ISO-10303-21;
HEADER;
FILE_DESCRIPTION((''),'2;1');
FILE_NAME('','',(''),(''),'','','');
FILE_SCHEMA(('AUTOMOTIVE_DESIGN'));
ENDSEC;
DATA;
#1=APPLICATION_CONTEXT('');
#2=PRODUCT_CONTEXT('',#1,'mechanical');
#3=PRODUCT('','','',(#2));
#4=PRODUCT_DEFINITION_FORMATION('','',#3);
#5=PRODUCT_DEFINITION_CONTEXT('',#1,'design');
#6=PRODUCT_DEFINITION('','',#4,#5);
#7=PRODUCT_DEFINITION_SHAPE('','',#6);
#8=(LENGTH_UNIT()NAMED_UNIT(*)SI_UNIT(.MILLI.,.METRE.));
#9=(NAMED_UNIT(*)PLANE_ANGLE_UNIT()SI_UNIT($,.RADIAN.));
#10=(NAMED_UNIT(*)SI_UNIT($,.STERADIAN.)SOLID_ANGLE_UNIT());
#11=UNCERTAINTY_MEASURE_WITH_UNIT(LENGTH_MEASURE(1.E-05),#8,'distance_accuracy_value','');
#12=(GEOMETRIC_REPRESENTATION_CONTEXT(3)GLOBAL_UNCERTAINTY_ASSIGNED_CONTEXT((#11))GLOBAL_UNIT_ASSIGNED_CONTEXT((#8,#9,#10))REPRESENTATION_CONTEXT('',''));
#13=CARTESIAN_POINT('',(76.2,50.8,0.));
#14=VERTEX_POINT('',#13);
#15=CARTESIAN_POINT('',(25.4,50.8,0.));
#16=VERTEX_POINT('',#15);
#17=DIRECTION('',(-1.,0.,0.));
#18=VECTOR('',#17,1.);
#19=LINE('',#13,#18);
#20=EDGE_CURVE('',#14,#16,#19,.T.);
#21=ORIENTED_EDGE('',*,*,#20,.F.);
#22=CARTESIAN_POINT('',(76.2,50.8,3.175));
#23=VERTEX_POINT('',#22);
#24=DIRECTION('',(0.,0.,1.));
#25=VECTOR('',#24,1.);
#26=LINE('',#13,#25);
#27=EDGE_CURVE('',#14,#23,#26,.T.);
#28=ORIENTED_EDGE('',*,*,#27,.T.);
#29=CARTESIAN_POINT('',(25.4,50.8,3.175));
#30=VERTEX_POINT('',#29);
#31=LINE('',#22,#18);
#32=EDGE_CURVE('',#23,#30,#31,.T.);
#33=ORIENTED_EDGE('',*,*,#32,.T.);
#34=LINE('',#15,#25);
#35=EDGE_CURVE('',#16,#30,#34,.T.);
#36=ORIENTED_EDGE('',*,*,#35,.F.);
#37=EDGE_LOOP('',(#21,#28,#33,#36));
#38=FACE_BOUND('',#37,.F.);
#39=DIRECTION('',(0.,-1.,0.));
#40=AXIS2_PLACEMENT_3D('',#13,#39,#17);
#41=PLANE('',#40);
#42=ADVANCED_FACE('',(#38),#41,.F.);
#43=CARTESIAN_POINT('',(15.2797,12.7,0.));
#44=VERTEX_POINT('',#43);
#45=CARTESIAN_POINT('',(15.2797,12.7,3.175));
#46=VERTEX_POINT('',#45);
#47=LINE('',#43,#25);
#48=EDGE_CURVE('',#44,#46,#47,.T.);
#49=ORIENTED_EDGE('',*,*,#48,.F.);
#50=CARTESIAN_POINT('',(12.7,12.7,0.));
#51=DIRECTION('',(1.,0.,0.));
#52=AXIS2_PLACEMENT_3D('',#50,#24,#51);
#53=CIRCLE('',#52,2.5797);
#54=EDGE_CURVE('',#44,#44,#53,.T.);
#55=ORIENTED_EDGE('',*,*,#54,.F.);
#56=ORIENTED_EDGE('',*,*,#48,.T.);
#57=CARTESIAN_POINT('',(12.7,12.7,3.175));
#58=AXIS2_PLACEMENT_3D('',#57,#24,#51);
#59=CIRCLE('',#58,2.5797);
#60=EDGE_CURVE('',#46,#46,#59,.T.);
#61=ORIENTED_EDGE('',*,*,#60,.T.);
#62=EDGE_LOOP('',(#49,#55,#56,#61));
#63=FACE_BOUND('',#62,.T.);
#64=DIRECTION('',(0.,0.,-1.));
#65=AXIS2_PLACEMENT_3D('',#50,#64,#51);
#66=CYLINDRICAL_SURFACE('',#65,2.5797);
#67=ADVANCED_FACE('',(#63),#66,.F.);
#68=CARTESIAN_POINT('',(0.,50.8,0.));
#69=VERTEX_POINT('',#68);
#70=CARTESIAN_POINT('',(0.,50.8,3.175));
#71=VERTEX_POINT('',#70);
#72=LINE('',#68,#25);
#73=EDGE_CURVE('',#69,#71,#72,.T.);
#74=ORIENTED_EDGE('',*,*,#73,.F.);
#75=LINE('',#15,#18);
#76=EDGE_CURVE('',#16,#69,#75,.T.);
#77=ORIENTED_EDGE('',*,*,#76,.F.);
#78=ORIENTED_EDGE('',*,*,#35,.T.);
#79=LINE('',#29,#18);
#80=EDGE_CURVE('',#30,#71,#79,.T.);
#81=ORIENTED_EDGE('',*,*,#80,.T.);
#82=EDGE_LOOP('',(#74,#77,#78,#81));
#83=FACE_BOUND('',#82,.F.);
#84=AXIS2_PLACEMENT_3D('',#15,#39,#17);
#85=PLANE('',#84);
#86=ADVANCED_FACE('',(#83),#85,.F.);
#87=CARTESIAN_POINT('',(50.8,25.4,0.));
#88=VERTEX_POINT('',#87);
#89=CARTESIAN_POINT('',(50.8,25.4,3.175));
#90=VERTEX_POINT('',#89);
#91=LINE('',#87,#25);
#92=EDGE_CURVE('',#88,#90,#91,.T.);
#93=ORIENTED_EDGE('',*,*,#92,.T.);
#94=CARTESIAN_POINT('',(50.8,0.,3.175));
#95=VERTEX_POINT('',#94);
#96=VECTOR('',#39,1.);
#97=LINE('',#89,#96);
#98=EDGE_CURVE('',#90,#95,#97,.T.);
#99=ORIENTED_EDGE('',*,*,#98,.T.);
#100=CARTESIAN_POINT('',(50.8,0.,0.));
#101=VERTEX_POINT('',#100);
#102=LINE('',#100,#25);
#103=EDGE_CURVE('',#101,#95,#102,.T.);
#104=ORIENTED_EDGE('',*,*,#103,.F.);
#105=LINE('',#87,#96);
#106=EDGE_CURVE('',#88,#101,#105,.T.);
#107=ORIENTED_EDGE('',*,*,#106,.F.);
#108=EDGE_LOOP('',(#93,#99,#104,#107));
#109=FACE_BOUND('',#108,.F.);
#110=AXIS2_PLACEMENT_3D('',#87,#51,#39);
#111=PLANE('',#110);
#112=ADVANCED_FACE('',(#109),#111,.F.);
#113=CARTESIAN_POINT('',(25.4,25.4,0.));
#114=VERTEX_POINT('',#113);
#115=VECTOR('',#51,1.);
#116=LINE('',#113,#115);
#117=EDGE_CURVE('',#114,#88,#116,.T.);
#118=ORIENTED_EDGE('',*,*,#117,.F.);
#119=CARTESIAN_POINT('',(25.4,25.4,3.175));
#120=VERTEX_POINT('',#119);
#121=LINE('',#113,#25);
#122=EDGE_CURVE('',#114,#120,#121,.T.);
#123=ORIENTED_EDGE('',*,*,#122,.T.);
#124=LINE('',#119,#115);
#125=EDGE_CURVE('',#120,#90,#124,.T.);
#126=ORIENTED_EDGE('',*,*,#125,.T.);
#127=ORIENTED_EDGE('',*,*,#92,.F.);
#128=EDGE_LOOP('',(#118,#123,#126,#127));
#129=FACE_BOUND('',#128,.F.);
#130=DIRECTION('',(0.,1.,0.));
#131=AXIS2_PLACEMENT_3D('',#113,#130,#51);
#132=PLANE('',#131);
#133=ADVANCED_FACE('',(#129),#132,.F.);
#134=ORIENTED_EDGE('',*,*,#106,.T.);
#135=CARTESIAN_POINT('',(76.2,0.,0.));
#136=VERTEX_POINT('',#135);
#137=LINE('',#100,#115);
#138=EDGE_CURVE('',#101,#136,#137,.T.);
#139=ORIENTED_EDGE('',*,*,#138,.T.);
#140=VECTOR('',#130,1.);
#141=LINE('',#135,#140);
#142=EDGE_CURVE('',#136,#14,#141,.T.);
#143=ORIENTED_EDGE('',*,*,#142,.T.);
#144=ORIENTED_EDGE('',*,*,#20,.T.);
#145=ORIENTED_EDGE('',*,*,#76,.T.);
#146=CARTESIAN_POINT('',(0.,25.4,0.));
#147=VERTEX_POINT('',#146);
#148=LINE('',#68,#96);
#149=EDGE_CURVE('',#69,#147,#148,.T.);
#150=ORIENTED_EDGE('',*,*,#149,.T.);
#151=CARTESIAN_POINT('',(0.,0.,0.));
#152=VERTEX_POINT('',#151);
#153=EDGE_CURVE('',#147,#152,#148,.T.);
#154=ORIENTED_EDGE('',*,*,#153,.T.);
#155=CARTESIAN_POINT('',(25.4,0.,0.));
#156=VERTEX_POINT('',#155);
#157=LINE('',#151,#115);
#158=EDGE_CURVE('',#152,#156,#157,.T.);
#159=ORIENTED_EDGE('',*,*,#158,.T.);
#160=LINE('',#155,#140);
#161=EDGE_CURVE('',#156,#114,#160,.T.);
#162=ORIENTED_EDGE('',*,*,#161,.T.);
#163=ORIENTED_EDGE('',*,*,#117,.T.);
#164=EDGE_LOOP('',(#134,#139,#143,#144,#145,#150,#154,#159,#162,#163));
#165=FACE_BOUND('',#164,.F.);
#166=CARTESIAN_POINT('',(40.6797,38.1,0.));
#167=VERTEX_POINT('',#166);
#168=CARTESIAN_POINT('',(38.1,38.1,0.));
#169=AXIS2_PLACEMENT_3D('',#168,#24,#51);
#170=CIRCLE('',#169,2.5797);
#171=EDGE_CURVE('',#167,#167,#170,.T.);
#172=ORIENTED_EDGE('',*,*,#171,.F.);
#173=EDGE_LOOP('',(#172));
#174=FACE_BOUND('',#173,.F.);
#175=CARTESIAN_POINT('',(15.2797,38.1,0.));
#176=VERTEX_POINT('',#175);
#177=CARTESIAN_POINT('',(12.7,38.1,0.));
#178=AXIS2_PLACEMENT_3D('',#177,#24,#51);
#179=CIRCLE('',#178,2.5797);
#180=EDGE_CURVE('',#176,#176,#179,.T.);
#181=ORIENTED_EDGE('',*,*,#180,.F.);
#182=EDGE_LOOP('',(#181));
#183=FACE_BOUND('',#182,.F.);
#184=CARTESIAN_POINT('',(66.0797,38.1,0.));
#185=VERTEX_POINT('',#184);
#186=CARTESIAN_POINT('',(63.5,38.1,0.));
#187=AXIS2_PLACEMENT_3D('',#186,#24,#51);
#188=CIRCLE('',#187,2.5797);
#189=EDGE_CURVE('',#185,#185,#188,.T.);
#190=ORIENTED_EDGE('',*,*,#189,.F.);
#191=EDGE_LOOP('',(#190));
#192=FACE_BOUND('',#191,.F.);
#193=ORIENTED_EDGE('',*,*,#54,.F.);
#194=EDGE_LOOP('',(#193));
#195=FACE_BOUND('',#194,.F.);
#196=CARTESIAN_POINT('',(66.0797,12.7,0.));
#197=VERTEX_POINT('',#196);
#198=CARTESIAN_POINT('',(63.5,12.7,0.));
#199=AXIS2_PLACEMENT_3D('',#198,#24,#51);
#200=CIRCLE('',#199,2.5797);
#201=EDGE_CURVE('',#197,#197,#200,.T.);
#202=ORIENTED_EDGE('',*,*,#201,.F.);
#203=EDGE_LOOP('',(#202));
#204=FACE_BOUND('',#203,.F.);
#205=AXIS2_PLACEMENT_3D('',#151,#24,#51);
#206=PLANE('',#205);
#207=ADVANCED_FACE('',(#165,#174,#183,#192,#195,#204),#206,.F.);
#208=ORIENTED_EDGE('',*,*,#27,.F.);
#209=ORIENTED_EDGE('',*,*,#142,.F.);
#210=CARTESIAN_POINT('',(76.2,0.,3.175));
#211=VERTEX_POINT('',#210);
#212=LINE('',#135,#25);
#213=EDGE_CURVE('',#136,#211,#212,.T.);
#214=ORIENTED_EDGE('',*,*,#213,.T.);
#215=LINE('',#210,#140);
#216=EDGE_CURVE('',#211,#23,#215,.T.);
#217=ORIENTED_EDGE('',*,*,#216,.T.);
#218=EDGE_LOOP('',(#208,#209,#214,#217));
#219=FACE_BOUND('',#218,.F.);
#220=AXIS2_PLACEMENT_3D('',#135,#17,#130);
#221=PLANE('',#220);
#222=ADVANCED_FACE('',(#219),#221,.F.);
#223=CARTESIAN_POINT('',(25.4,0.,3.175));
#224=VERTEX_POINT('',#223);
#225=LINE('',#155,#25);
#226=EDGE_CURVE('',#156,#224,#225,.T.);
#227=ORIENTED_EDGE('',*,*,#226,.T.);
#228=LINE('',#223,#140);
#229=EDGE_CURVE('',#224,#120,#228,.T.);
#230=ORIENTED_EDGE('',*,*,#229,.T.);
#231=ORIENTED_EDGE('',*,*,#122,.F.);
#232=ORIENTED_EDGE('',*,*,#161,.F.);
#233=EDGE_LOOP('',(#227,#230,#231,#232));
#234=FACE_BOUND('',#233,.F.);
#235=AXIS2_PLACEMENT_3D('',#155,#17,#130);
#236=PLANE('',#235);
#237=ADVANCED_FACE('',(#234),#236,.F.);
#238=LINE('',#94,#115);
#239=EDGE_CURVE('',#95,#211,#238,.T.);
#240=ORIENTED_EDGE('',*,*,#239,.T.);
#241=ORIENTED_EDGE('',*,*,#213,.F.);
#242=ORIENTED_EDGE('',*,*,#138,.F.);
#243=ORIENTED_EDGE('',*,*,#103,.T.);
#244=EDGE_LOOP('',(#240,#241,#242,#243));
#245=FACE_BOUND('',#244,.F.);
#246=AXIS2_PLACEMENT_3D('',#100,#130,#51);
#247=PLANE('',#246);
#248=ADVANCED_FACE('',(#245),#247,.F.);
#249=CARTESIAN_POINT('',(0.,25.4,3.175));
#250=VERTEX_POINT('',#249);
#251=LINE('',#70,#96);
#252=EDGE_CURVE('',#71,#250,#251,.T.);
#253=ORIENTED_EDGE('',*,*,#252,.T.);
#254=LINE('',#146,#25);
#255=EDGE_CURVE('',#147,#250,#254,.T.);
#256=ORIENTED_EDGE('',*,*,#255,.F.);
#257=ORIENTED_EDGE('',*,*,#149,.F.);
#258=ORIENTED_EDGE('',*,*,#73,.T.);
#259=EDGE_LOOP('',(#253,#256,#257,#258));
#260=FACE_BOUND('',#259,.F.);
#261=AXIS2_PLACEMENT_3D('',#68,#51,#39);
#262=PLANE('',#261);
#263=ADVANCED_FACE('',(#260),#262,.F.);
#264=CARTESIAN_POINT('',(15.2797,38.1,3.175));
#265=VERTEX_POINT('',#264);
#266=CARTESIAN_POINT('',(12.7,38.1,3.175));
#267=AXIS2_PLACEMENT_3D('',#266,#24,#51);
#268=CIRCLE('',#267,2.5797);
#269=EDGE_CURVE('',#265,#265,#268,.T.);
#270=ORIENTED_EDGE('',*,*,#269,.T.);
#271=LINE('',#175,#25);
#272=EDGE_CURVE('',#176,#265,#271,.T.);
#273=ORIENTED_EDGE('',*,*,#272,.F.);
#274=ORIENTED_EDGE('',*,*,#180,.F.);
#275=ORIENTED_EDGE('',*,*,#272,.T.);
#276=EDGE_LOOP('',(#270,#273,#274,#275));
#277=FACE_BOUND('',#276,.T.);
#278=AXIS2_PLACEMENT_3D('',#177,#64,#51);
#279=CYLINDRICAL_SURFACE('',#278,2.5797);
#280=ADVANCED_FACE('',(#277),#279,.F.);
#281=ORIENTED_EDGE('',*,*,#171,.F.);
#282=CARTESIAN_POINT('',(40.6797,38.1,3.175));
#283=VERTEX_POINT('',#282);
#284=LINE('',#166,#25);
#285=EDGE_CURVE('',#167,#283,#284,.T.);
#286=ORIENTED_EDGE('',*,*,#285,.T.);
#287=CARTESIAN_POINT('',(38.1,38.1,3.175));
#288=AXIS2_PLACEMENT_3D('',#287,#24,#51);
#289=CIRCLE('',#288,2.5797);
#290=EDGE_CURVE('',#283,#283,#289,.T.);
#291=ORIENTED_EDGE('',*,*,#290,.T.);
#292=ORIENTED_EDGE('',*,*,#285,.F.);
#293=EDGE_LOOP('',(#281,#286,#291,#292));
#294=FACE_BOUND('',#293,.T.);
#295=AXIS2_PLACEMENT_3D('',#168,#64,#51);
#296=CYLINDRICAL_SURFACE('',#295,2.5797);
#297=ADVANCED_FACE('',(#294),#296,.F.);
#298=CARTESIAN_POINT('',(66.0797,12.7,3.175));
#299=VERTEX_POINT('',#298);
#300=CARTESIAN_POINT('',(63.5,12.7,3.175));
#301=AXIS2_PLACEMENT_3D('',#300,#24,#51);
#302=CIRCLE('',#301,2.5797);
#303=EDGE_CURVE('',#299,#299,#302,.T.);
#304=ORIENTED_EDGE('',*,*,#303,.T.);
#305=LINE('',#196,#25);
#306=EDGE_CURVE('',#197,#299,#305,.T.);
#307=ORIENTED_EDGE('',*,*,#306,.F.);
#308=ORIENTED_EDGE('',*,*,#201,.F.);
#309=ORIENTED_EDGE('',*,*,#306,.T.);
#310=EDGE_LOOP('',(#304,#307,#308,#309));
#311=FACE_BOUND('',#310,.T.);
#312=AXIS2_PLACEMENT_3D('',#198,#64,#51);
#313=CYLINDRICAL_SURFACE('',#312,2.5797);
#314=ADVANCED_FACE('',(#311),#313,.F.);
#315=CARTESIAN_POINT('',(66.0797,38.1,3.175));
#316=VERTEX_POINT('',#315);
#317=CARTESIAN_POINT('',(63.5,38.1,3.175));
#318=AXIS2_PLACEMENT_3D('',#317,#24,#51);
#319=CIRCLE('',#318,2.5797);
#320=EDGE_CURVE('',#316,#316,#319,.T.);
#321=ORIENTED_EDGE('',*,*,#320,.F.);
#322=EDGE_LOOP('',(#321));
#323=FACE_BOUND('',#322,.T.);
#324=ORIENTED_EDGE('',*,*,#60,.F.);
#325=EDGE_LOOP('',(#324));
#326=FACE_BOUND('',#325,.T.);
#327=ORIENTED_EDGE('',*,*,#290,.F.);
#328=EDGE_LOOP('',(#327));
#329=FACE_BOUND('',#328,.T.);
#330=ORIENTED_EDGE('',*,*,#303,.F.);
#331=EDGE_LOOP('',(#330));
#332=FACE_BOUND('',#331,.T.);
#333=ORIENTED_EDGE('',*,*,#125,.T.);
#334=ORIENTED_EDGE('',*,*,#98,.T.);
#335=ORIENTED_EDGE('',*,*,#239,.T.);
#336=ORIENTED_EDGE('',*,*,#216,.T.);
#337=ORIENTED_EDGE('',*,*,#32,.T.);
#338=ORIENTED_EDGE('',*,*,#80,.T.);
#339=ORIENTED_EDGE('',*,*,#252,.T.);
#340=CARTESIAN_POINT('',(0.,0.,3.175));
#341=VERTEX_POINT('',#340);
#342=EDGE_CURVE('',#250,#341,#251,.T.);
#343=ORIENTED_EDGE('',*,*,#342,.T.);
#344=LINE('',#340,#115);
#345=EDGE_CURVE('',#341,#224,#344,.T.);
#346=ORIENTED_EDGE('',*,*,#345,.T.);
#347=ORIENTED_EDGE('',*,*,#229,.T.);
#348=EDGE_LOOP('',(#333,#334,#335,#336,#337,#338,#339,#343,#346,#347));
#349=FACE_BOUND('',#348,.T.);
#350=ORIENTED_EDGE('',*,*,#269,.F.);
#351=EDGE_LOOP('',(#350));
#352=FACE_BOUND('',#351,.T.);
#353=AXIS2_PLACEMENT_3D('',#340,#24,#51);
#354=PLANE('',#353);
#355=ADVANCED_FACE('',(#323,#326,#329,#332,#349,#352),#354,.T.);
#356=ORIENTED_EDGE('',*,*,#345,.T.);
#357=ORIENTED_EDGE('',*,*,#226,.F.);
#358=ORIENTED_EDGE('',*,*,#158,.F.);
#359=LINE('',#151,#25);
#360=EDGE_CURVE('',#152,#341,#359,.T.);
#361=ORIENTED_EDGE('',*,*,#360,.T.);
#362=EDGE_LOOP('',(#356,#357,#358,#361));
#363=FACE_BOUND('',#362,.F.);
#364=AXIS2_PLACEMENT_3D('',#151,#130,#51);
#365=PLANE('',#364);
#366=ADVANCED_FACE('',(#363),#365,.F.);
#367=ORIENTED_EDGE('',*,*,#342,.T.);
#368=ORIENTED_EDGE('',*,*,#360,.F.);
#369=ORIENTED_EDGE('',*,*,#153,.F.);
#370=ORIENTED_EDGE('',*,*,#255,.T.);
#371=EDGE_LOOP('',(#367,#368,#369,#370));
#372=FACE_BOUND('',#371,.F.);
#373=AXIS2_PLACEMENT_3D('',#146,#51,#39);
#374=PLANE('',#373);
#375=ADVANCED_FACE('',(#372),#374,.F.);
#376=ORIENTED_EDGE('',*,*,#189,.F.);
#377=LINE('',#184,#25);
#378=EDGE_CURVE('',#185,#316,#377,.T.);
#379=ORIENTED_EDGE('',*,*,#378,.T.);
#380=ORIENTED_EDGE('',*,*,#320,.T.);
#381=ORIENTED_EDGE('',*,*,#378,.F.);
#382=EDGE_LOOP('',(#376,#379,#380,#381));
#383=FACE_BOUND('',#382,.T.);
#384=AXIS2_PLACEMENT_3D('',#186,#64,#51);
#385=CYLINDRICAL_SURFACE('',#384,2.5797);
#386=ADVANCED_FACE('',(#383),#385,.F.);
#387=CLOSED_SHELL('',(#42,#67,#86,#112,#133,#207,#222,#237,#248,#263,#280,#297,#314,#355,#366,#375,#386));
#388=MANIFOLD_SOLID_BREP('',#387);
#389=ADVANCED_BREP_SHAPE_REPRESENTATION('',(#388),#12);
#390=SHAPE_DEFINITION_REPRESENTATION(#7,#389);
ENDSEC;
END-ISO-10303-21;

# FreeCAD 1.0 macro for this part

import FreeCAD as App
import Part
import Sketcher
from FreeCAD import Vector
Q = App.Units.Quantity


def add_polygon(sketch, points):
    """Adds a closed chain of lines whose ends are joined by coincident constraints."""
    first, n = sketch.GeometryCount, len(points)
    for a, b in zip(points, points[1:] + points[:1]):
        sketch.addGeometry(Part.LineSegment(App.Vector(*a, 0), App.Vector(*b, 0)), False)
    for i in range(n):
        sketch.addConstraint(Sketcher.Constraint("Coincident", first + i, 2, first + (i + 1) % n, 1))

doc = App.newDocument("Part")
body = doc.addObject("PartDesign::Body", "Body")

# Sketch on XY plane
sketch1 = body.newObject("Sketcher::SketchObject", "Sketch")
sketch1.AttachmentSupport = (doc.getObject("XY_Plane"), [""])
sketch1.MapMode = "FlatFace"
add_polygon(sketch1, [(0, 50.8), (0, 0), (25.4, 0), (25.4, 25.4), (50.8, 25.4), (50.8, 0), (76.2, 0), (76.2, 50.8)])  # lines 0-7
sketch1.addGeometry(Part.Circle(Vector(12.7, 12.7, 0), Vector(0, 0, 1), 2.6), False)  # 8
sketch1.addGeometry(Part.Circle(Vector(63.5, 12.7, 0), Vector(0, 0, 1), 2.6), False)  # 9
sketch1.addGeometry(Part.Circle(Vector(12.7, 38.1, 0), Vector(0, 0, 1), 2.6), False)  # 10
sketch1.addGeometry(Part.Circle(Vector(38.1, 38.1, 0), Vector(0, 0, 1), 2.6), False)  # 11
sketch1.addGeometry(Part.Circle(Vector(63.5, 38.1, 0), Vector(0, 0, 1), 2.6), False)  # 12
sketch1.addConstraint(Sketcher.Constraint("Vertical", 0))
sketch1.addConstraint(Sketcher.Constraint("Horizontal", 1))
sketch1.addConstraint(Sketcher.Constraint("Vertical", 2))
sketch1.addConstraint(Sketcher.Constraint("Horizontal", 3))
sketch1.addConstraint(Sketcher.Constraint("Vertical", 4))
sketch1.addConstraint(Sketcher.Constraint("Horizontal", 5))
sketch1.addConstraint(Sketcher.Constraint("Vertical", 6))
sketch1.addConstraint(Sketcher.Constraint("Horizontal", 7))
sketch1.addConstraint(Sketcher.Constraint("Coincident", 0, 2, -1, 1))
sketch1.addConstraint(Sketcher.Constraint("Equal", 8, 9))
sketch1.addConstraint(Sketcher.Constraint("Equal", 9, 10))
sketch1.addConstraint(Sketcher.Constraint("Equal", 10, 11))
sketch1.addConstraint(Sketcher.Constraint("Equal", 11, 12))
sketch1.addConstraint(Sketcher.Constraint("PointOnObject", 4, 2, -1))
sketch1.addConstraint(Sketcher.Constraint("Horizontal", 8, 3, 9, 3))
sketch1.addConstraint(Sketcher.Constraint("Horizontal", 10, 3, 11, 3))
sketch1.addConstraint(Sketcher.Constraint("Horizontal", 11, 3, 12, 3))
sketch1.addConstraint(Sketcher.Constraint("Vertical", 8, 3, 10, 3))
sketch1.addConstraint(Sketcher.Constraint("Vertical", 9, 3, 12, 3))
sketch1.addConstraint(Sketcher.Constraint("Equal", 1, 3))
sketch1.addConstraint(Sketcher.Constraint("Equal", 3, 5))
sketch1.addConstraint(Sketcher.Constraint("Equal", 5, 2))
sketch1.addConstraint(Sketcher.Constraint("DistanceX", 1, 1, 1, 2, Q("1 in")))
sketch1.addConstraint(Sketcher.Constraint("DistanceY", 0, 2, 0, 1, Q("2 in")))
sketch1.addConstraint(Sketcher.Constraint("Diameter", 8, Q("0.203126 in")))
sketch1.addConstraint(Sketcher.Constraint("DistanceX", 8, 3, 9, 3, Q("2 in")))
sketch1.addConstraint(Sketcher.Constraint("DistanceY", 8, 3, 10, 3, Q("1 in")))
sketch1.addConstraint(Sketcher.Constraint("DistanceX", 10, 3, 11, 3, Q("1 in")))
sketch1.addConstraint(Sketcher.Constraint("DistanceX", -1, 1, 8, 3, Q("0.5 in")))
sketch1.addConstraint(Sketcher.Constraint("DistanceY", -1, 1, 8, 3, Q("0.5 in")))
pad1 = body.newObject("PartDesign::Pad", "Pad")
pad1.Profile = sketch1
pad1.Length = Q("0.125 in")

doc.recompute()
